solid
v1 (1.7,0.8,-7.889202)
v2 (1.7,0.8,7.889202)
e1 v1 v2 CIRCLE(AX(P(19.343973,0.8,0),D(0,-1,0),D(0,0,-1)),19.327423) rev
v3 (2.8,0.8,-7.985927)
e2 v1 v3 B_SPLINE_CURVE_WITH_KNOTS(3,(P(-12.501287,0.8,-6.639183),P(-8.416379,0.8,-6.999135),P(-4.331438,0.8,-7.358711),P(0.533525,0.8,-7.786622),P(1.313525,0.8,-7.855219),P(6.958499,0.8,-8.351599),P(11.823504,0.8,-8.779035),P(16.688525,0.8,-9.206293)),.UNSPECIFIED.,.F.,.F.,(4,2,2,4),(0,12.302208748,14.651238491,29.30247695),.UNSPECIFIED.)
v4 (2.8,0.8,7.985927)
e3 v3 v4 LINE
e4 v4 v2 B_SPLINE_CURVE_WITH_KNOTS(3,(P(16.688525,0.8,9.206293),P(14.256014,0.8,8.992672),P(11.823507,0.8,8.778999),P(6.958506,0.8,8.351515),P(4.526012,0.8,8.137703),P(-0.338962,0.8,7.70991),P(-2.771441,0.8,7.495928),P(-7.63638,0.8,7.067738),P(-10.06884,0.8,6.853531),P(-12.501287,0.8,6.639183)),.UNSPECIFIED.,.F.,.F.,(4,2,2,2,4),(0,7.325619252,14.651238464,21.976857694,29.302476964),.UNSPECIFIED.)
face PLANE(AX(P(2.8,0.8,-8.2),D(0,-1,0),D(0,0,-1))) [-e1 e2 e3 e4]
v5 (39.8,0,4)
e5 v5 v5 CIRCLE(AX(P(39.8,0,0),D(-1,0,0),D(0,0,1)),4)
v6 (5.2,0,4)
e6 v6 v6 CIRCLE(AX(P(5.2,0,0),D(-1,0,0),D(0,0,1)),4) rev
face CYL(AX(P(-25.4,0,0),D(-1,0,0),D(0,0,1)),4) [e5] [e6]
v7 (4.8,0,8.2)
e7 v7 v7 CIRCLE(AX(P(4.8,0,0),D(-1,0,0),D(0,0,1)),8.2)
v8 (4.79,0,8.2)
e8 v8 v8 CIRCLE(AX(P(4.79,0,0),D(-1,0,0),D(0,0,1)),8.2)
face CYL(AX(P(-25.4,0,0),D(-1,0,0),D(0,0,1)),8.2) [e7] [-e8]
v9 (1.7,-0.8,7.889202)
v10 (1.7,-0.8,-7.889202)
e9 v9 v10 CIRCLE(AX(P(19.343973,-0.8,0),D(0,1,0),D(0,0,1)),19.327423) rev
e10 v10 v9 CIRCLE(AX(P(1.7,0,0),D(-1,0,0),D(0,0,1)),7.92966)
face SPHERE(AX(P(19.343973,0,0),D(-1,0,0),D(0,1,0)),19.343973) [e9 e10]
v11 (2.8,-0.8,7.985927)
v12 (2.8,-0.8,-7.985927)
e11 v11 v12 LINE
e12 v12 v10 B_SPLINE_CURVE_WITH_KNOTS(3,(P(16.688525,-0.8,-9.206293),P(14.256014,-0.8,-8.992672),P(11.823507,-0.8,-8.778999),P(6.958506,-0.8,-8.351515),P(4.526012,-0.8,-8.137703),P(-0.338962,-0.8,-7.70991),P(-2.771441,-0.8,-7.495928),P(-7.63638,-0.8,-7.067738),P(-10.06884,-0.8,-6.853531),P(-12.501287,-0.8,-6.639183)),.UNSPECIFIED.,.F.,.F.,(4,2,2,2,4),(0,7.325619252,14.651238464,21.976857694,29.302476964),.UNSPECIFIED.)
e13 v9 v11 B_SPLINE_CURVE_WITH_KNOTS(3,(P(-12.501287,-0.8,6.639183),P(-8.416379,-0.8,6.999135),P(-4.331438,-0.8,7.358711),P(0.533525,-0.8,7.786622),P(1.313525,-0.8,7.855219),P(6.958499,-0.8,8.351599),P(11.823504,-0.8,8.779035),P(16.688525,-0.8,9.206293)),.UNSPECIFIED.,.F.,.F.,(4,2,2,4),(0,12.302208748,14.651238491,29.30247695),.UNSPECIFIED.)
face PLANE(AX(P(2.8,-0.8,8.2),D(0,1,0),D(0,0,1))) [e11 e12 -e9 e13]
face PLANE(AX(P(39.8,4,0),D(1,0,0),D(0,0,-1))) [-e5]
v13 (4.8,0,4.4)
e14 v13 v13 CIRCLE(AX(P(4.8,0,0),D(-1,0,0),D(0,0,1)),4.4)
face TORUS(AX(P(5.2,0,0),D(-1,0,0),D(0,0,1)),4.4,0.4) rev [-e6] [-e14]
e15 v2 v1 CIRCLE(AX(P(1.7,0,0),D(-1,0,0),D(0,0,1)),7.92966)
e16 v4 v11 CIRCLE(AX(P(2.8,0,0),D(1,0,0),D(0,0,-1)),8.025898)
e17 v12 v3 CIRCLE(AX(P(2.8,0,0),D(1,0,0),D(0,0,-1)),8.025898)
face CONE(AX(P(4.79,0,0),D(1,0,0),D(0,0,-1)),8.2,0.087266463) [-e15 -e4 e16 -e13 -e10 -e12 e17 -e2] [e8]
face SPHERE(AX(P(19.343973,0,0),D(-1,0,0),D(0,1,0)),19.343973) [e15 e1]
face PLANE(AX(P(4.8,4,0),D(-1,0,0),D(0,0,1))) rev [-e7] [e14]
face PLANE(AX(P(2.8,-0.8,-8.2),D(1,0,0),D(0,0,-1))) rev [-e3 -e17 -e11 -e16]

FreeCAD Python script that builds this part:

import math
import FreeCAD as App
import Part
import Sketcher

V = App.Vector
Q = App.Units.Quantity


def edges_at(feature, points):
    """Names of the edges that pass closest to the given points."""
    edges = feature.Shape.Edges
    near = lambda p: min(range(len(edges)), key=lambda i: edges[i].distToShape(Part.Vertex(*p))[0])
    return sorted({f"Edge{near(p) + 1}" for p in points})


def add_polygon(sketch, points):
    """Adds a closed chain of lines whose ends are joined by coincident constraints."""
    first, n = sketch.GeometryCount, len(points)
    for a, b in zip(points, points[1:] + points[:1]):
        sketch.addGeometry(Part.LineSegment(App.Vector(*a, 0), App.Vector(*b, 0)), False)
    for i in range(n):
        sketch.addConstraint(Sketcher.Constraint("Coincident", first + i, 2, first + (i + 1) % n, 1))

doc = App.newDocument("Part")
body = doc.addObject("PartDesign::Body", "Body")

# Sketch on XY plane
sketch1 = doc.addObject("Sketcher::SketchObject", "Sketch")
body.addObject(sketch1)
sketch1.AttachmentSupport = (doc.XY_Plane, [""])
sketch1.MapMode = "FlatFace"
sketch1.addGeometry(Part.LineSegment(V(4.8, 4, 0), V(4.8, 8.2, 0)), False)
sketch1.addGeometry(Part.LineSegment(V(4.8, 8.2, 0), V(4.79, 8.2, 0)), False)
sketch1.addGeometry(Part.LineSegment(V(4.79, 8.2, 0), V(1.7, 7.93, 0)), False)
sketch1.addGeometry(Part.ArcOfCircle(Part.Circle(V(19.344, 0, 0), V(0, 0, 1), 19.344), math.radians(156), math.radians(180)), False)
sketch1.addGeometry(Part.LineSegment(V(0, 0, 0), V(39.8, 0, 0)), False)
sketch1.addGeometry(Part.LineSegment(V(39.8, 0, 0), V(39.8, 4, 0)), False)
sketch1.addGeometry(Part.LineSegment(V(39.8, 4, 0), V(4.8, 4, 0)), False)
sketch1.addConstraint(Sketcher.Constraint("Coincident", 0, 2, 1, 1))
sketch1.addConstraint(Sketcher.Constraint("Coincident", 1, 2, 2, 1))
sketch1.addConstraint(Sketcher.Constraint("Coincident", 2, 2, 3, 1))
sketch1.addConstraint(Sketcher.Constraint("Coincident", 3, 2, 4, 1))
sketch1.addConstraint(Sketcher.Constraint("Coincident", 4, 2, 5, 1))
sketch1.addConstraint(Sketcher.Constraint("Coincident", 5, 2, 6, 1))
sketch1.addConstraint(Sketcher.Constraint("Coincident", 6, 2, 0, 1))
sketch1.addConstraint(Sketcher.Constraint("Vertical", 0))
sketch1.addConstraint(Sketcher.Constraint("Horizontal", 1))
sketch1.addConstraint(Sketcher.Constraint("Horizontal", 4))
sketch1.addConstraint(Sketcher.Constraint("Vertical", 5))
sketch1.addConstraint(Sketcher.Constraint("Horizontal", 6))
sketch1.addConstraint(Sketcher.Constraint("Coincident", 3, 2, -1, 1))
sketch1.addConstraint(Sketcher.Constraint("PointOnObject", 3, 3, -1))
sketch1.addConstraint(Sketcher.Constraint("DistanceX", 6, 2, 6, 1, Q("35 mm")))
sketch1.addConstraint(Sketcher.Constraint("DistanceY", 5, 1, 5, 2, Q("4 mm")))
sketch1.addConstraint(Sketcher.Constraint("Angle", 2, Q("-175 deg")))
sketch1.addConstraint(Sketcher.Constraint("DistanceX", 4, 1, 4, 2, Q("39.8 mm")))
sketch1.addConstraint(Sketcher.Constraint("DistanceY", 0, 1, 0, 2, Q("4.2 mm")))
sketch1.addConstraint(Sketcher.Constraint("DistanceX", 1, 2, 1, 1, Q("0.01 mm")))
sketch1.addConstraint(Sketcher.Constraint("DistanceX", -1, 1, 2, 2, Q("1.7 mm")))
revolution = doc.addObject("PartDesign::Revolution", "Revolution")
body.addObject(revolution)
revolution.Profile = sketch1
revolution.ReferenceAxis = (sketch1, ["H_Axis"])
revolution.Angle = 360
doc.recompute()

fillet = doc.addObject("PartDesign::Fillet", "Fillet")
body.addObject(fillet)
fillet.Base = (revolution, edges_at(revolution, [(4.8, 0, -4)]))
fillet.Radius = 0.4

# Sketch on YZ plane
sketch2 = doc.addObject("Sketcher::SketchObject", "Sketch001")
body.addObject(sketch2)
sketch2.AttachmentSupport = (doc.YZ_Plane, [""])
sketch2.MapMode = "FlatFace"
add_polygon(sketch2, [(0.8, 8.2), (-0.8, 8.2), (-0.8, -8.2), (0.8, -8.2)])  # lines 0-3
sketch2.addConstraint(Sketcher.Constraint("Horizontal", 0))
sketch2.addConstraint(Sketcher.Constraint("Vertical", 1))
sketch2.addConstraint(Sketcher.Constraint("Horizontal", 2))
sketch2.addConstraint(Sketcher.Constraint("Vertical", 3))
sketch2.addConstraint(Sketcher.Constraint("Symmetric", 0, 2, 2, 2, -1, 1))
sketch2.addConstraint(Sketcher.Constraint("DistanceX", 0, 2, 0, 1, Q("1.6 mm")))
sketch2.addConstraint(Sketcher.Constraint("DistanceY", 1, 2, 1, 1, Q("16.4 mm")))
pocket1 = doc.addObject("PartDesign::Pocket", "Pocket")
body.addObject(pocket1)
pocket1.Profile = sketch2
pocket1.Length = 2.8
pocket1.Reversed = True

doc.recompute()
